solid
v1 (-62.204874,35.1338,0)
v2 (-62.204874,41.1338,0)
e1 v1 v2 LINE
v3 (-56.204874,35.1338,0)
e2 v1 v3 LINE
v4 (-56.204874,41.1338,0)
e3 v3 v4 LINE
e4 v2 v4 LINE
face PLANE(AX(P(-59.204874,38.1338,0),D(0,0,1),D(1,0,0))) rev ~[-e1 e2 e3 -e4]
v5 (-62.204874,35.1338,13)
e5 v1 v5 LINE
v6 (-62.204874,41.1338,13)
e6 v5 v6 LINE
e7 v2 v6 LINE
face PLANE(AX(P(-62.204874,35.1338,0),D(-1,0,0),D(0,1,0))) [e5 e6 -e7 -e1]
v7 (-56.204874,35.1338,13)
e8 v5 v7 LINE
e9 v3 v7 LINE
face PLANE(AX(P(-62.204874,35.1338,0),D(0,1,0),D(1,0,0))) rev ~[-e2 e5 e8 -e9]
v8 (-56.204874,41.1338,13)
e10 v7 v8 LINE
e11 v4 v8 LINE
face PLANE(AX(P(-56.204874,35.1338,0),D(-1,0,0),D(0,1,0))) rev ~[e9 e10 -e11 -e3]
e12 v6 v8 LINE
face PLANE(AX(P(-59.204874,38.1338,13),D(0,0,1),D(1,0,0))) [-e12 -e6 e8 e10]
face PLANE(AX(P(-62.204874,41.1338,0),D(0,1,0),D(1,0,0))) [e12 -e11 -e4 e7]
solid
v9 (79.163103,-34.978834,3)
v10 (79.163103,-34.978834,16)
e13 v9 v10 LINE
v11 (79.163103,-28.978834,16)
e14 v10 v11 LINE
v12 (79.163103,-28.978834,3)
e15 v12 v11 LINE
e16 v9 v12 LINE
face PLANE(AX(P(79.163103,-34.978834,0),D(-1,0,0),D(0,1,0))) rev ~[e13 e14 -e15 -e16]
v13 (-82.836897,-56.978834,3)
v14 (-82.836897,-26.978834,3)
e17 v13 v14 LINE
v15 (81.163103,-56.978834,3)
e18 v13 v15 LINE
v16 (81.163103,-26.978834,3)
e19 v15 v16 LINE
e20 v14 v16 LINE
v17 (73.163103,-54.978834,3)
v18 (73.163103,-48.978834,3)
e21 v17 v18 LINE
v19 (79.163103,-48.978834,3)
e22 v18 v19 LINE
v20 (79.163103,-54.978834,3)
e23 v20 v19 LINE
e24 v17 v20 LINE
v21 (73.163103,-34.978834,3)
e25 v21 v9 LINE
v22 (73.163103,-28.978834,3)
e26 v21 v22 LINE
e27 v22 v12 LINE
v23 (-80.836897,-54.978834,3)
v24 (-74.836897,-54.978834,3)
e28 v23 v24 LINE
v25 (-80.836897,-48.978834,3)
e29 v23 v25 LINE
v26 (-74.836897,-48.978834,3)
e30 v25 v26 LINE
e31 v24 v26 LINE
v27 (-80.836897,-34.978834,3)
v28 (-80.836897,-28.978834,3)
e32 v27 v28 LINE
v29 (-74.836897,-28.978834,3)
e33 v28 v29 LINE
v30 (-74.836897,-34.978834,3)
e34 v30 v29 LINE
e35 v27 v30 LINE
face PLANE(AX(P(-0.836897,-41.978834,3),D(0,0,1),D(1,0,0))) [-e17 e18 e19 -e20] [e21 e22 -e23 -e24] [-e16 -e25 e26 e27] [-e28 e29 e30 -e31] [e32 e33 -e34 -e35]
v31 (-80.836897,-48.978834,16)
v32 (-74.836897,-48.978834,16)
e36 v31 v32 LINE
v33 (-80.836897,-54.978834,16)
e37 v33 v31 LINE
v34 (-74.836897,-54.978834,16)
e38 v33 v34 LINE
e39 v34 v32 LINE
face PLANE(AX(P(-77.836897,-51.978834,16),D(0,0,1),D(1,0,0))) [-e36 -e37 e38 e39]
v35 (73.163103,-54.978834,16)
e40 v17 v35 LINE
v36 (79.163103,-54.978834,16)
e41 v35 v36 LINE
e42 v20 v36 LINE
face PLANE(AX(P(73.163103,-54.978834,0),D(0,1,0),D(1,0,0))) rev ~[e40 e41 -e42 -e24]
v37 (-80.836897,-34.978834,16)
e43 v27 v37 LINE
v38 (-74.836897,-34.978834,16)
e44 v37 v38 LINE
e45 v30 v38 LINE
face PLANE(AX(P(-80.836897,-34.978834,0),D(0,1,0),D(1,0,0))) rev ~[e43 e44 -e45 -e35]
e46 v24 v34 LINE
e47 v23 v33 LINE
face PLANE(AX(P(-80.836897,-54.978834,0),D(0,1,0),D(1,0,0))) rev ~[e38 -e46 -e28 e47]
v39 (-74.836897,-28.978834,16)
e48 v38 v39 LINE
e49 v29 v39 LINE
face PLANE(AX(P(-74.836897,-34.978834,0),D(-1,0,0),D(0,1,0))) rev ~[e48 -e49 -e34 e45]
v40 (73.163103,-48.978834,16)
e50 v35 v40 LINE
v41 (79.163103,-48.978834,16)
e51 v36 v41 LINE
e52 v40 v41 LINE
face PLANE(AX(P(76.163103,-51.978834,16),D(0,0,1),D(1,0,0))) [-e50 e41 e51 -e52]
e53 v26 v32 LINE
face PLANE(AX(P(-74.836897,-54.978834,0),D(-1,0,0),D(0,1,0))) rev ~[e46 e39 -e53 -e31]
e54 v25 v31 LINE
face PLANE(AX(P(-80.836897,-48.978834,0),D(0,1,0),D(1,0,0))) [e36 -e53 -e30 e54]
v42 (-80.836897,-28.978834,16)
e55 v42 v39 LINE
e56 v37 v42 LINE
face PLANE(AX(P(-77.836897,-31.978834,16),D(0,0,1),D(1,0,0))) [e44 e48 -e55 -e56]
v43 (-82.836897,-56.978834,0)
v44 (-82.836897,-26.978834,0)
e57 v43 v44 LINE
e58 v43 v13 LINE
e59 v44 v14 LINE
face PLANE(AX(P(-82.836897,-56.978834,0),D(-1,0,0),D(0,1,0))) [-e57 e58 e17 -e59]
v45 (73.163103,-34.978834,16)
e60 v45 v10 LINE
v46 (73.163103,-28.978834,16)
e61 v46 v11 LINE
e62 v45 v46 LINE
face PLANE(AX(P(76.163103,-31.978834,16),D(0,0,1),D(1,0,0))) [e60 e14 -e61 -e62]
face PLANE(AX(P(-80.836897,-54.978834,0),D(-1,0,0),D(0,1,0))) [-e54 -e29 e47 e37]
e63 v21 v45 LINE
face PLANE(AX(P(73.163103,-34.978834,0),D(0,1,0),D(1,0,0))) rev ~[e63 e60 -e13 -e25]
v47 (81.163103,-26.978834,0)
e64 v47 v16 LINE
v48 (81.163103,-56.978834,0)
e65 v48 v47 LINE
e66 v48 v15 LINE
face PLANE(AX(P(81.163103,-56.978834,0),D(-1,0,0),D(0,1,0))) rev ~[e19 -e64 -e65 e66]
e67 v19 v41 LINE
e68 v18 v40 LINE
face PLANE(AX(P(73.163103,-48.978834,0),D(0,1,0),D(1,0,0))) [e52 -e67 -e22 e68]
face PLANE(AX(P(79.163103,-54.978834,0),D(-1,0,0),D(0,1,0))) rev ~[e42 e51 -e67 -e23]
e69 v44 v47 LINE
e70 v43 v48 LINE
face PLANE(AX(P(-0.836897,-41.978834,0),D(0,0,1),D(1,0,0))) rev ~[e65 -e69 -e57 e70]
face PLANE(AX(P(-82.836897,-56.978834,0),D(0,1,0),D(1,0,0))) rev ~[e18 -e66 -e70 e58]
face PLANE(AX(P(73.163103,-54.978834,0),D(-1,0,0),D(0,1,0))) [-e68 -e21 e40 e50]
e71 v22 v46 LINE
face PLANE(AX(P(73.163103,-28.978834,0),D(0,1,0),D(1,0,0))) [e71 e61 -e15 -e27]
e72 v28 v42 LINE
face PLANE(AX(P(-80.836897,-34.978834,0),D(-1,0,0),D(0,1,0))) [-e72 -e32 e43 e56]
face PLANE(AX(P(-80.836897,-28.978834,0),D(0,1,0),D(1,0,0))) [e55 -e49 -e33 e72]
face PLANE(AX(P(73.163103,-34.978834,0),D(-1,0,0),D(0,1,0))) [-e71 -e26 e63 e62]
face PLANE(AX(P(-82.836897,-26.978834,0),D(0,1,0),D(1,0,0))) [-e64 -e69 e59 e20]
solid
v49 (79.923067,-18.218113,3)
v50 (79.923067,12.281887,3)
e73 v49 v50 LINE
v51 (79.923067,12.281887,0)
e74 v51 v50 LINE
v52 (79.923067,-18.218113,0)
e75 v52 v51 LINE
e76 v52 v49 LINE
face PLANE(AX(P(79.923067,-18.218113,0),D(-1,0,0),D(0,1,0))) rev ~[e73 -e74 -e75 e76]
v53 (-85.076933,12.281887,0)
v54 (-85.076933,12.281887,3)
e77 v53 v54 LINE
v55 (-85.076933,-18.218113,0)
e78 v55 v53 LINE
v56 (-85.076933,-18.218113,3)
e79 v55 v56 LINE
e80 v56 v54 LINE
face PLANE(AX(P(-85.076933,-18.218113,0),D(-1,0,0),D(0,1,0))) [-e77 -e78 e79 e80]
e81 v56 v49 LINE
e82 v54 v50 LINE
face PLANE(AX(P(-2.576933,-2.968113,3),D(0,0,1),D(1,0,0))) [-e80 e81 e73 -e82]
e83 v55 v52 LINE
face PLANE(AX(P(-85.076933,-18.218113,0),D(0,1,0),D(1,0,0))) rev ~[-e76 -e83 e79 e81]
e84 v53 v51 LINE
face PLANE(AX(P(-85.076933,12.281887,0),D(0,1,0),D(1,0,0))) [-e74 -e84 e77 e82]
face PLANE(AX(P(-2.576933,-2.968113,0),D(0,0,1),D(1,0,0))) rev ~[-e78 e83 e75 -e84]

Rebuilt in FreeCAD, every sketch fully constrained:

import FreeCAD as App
import Part
import Sketcher

V = App.Vector
Q = App.Units.Quantity

doc = App.newDocument("Part")
body = doc.addObject("PartDesign::Body", "Body")

sketch1 = body.newObject("Sketcher::SketchObject", "Sketch")
sketch1.AttachmentSupport = (doc.getObject("XY_Plane"), [""])
sketch1.MapMode = "FlatFace"
sketch1.addGeometry([
    Part.LineSegment(V(-85, 12, 0), V(-85, -18, 0)),
    Part.LineSegment(V(-85, -18, 0), V(80, -18, 0)),
    Part.LineSegment(V(80, -18, 0), V(80, 12, 0)),
    Part.LineSegment(V(80, 12, 0), V(-85, 12, 0)),
], False)
sketch1.addConstraint([
    Sketcher.Constraint("Coincident", 0, 2, 1, 1),
    Sketcher.Constraint("Coincident", 1, 2, 2, 1),
    Sketcher.Constraint("Coincident", 2, 2, 3, 1),
    Sketcher.Constraint("Coincident", 3, 2, 0, 1),
    Sketcher.Constraint("Vertical", 0),
    Sketcher.Constraint("Horizontal", 1),
    Sketcher.Constraint("Vertical", 2),
    Sketcher.Constraint("Horizontal", 3),
    Sketcher.Constraint("DistanceX", 1, 1, 1, 2, Q("165 mm")),
    Sketcher.Constraint("DistanceY", 0, 2, 0, 1, Q("30.5 mm")),
    Sketcher.Constraint("DistanceX", 0, 2, -1, 1, Q("85.076933 mm")),
    Sketcher.Constraint("DistanceY", 0, 2, -1, 1, Q("18.218113 mm")),
])
pad1 = body.newObject("PartDesign::Pad", "Pad")
pad1.Profile = sketch1
pad1.Length = 3
body2 = doc.addObject("PartDesign::Body", "Body001")

sketch2 = body2.newObject("Sketcher::SketchObject", "Sketch001")
sketch2.AttachmentSupport = (doc.getObject("XY_Plane001"), [""])
sketch2.MapMode = "FlatFace"
sketch2.addGeometry([
    Part.LineSegment(V(-62, 41, 0), V(-62, 35, 0)),
    Part.LineSegment(V(-62, 35, 0), V(-56, 35, 0)),
    Part.LineSegment(V(-56, 35, 0), V(-56, 41, 0)),
    Part.LineSegment(V(-56, 41, 0), V(-62, 41, 0)),
], False)
sketch2.addConstraint([
    Sketcher.Constraint("Coincident", 0, 2, 1, 1),
    Sketcher.Constraint("Coincident", 1, 2, 2, 1),
    Sketcher.Constraint("Coincident", 2, 2, 3, 1),
    Sketcher.Constraint("Coincident", 3, 2, 0, 1),
    Sketcher.Constraint("Vertical", 0),
    Sketcher.Constraint("Horizontal", 1),
    Sketcher.Constraint("Vertical", 2),
    Sketcher.Constraint("Horizontal", 3),
    Sketcher.Constraint("Equal", 3, 0),
    Sketcher.Constraint("DistanceX", 1, 1, 1, 2, Q("6 mm")),
    Sketcher.Constraint("DistanceY", -1, 1, 0, 2, Q("35.1338 mm")),
    Sketcher.Constraint("DistanceX", 0, 2, -1, 1, Q("62.204874 mm")),
])
pad2 = body2.newObject("PartDesign::Pad", "Pad001")
pad2.Profile = sketch2
pad2.Length = 13
body3 = doc.addObject("PartDesign::Body", "Body002")

sketch3 = body3.newObject("Sketcher::SketchObject", "Sketch002")
sketch3.AttachmentSupport = (doc.getObject("XY_Plane002"), [""])
sketch3.MapMode = "FlatFace"
sketch3.addGeometry([
    Part.LineSegment(V(-83, -27, 0), V(-83, -57, 0)),
    Part.LineSegment(V(-83, -57, 0), V(81, -57, 0)),
    Part.LineSegment(V(81, -57, 0), V(81, -27, 0)),
    Part.LineSegment(V(81, -27, 0), V(-83, -27, 0)),
    Part.LineSegment(V(-75, -55, 0), V(-81, -55, 0)),
    Part.LineSegment(V(-81, -55, 0), V(-81, -49, 0)),
    Part.LineSegment(V(-81, -49, 0), V(-75, -49, 0)),
    Part.LineSegment(V(-75, -49, 0), V(-75, -55, 0)),
    Part.LineSegment(V(79, -55, 0), V(73, -55, 0)),
    Part.LineSegment(V(73, -55, 0), V(73, -49, 0)),
    Part.LineSegment(V(73, -49, 0), V(79, -49, 0)),
    Part.LineSegment(V(79, -49, 0), V(79, -55, 0)),
    Part.LineSegment(V(-75, -35, 0), V(-81, -35, 0)),
    Part.LineSegment(V(-81, -35, 0), V(-81, -29, 0)),
    Part.LineSegment(V(-81, -29, 0), V(-75, -29, 0)),
    Part.LineSegment(V(-75, -29, 0), V(-75, -35, 0)),
    Part.LineSegment(V(79, -35, 0), V(73, -35, 0)),
    Part.LineSegment(V(73, -35, 0), V(73, -29, 0)),
    Part.LineSegment(V(73, -29, 0), V(79, -29, 0)),
    Part.LineSegment(V(79, -29, 0), V(79, -35, 0)),
], False)
sketch3.addConstraint([
    Sketcher.Constraint("Coincident", 0, 2, 1, 1),
    Sketcher.Constraint("Coincident", 1, 2, 2, 1),
    Sketcher.Constraint("Coincident", 2, 2, 3, 1),
    Sketcher.Constraint("Coincident", 3, 2, 0, 1),
    Sketcher.Constraint("Coincident", 4, 2, 5, 1),
    Sketcher.Constraint("Coincident", 5, 2, 6, 1),
    Sketcher.Constraint("Coincident", 6, 2, 7, 1),
    Sketcher.Constraint("Coincident", 7, 2, 4, 1),
    Sketcher.Constraint("Coincident", 8, 2, 9, 1),
    Sketcher.Constraint("Coincident", 9, 2, 10, 1),
    Sketcher.Constraint("Coincident", 10, 2, 11, 1),
    Sketcher.Constraint("Coincident", 11, 2, 8, 1),
    Sketcher.Constraint("Coincident", 12, 2, 13, 1),
    Sketcher.Constraint("Coincident", 13, 2, 14, 1),
    Sketcher.Constraint("Coincident", 14, 2, 15, 1),
    Sketcher.Constraint("Coincident", 15, 2, 12, 1),
    Sketcher.Constraint("Coincident", 16, 2, 17, 1),
    Sketcher.Constraint("Coincident", 17, 2, 18, 1),
    Sketcher.Constraint("Coincident", 18, 2, 19, 1),
    Sketcher.Constraint("Coincident", 19, 2, 16, 1),
    Sketcher.Constraint("Vertical", 0),
    Sketcher.Constraint("Horizontal", 1),
    Sketcher.Constraint("Vertical", 2),
    Sketcher.Constraint("Horizontal", 3),
    Sketcher.Constraint("Horizontal", 4),
    Sketcher.Constraint("Vertical", 5),
    Sketcher.Constraint("Horizontal", 6),
    Sketcher.Constraint("Vertical", 7),
    Sketcher.Constraint("Horizontal", 8),
    Sketcher.Constraint("Vertical", 9),
    Sketcher.Constraint("Horizontal", 10),
    Sketcher.Constraint("Vertical", 11),
    Sketcher.Constraint("Horizontal", 12),
    Sketcher.Constraint("Vertical", 13),
    Sketcher.Constraint("Horizontal", 14),
    Sketcher.Constraint("Vertical", 15),
    Sketcher.Constraint("Horizontal", 16),
    Sketcher.Constraint("Vertical", 17),
    Sketcher.Constraint("Horizontal", 18),
    Sketcher.Constraint("Vertical", 19),
    Sketcher.Constraint("Horizontal", 7, 2, 8, 2),
    Sketcher.Constraint("Horizontal", 6, 2, 9, 2),
    Sketcher.Constraint("Horizontal", 15, 2, 16, 2),
    Sketcher.Constraint("Horizontal", 14, 2, 17, 2),
    Sketcher.Constraint("Vertical", 5, 2, 12, 2),
    Sketcher.Constraint("Vertical", 7, 2, 14, 2),
    Sketcher.Constraint("Vertical", 9, 2, 16, 2),
    Sketcher.Constraint("Vertical", 11, 2, 18, 2),
    Sketcher.Constraint("Equal", 6, 8),
    Sketcher.Constraint("Equal", 18, 5),
    Sketcher.Constraint("Equal", 11, 13),
    Sketcher.Constraint("DistanceX", 1, 1, 1, 2, Q("164 mm")),
    Sketcher.Constraint("DistanceX", 4, 2, 4, 1, Q("6 mm")),
    Sketcher.Constraint("DistanceY", 0, 2, 0, 1, Q("30 mm")),
    Sketcher.Constraint("DistanceX", 0, 2, 4, 2, Q("2 mm")),
    Sketcher.Constraint("DistanceY", 0, 2, 4, 2, Q("2 mm")),
    Sketcher.Constraint("DistanceX", 8, 2, 1, 2, Q("8 mm")),
    Sketcher.Constraint("DistanceY", 12, 2, 3, 2, Q("8 mm")),
    Sketcher.Constraint("DistanceX", 0, 2, -1, 1, Q("82.836897 mm")),
    Sketcher.Constraint("DistanceY", 0, 2, -1, 1, Q("56.978834 mm")),
])
pad3 = body3.newObject("PartDesign::Pad", "Pad002")
pad3.Profile = sketch3
pad3.Length = 3

sketch4 = body3.newObject("Sketcher::SketchObject", "Sketch003")
sketch4.AttachmentSupport = (doc.getObject("XY_Plane002"), [""])
sketch4.MapMode = "FlatFace"
sketch4.addGeometry([
    Part.LineSegment(V(-81, -29, 0), V(-81, -35, 0)),
    Part.LineSegment(V(-81, -35, 0), V(-75, -35, 0)),
    Part.LineSegment(V(-75, -35, 0), V(-75, -29, 0)),
    Part.LineSegment(V(-75, -29, 0), V(-81, -29, 0)),
    Part.LineSegment(V(-81, -49, 0), V(-81, -55, 0)),
    Part.LineSegment(V(-81, -55, 0), V(-75, -55, 0)),
    Part.LineSegment(V(-75, -55, 0), V(-75, -49, 0)),
    Part.LineSegment(V(-75, -49, 0), V(-81, -49, 0)),
    Part.LineSegment(V(73, -29, 0), V(73, -35, 0)),
    Part.LineSegment(V(73, -35, 0), V(79, -35, 0)),
    Part.LineSegment(V(79, -35, 0), V(79, -29, 0)),
    Part.LineSegment(V(79, -29, 0), V(73, -29, 0)),
    Part.LineSegment(V(73, -49, 0), V(73, -55, 0)),
    Part.LineSegment(V(73, -55, 0), V(79, -55, 0)),
    Part.LineSegment(V(79, -55, 0), V(79, -49, 0)),
    Part.LineSegment(V(79, -49, 0), V(73, -49, 0)),
], False)
sketch4.addConstraint([
    Sketcher.Constraint("Coincident", 0, 2, 1, 1),
    Sketcher.Constraint("Coincident", 1, 2, 2, 1),
    Sketcher.Constraint("Coincident", 2, 2, 3, 1),
    Sketcher.Constraint("Coincident", 3, 2, 0, 1),
    Sketcher.Constraint("Coincident", 4, 2, 5, 1),
    Sketcher.Constraint("Coincident", 5, 2, 6, 1),
    Sketcher.Constraint("Coincident", 6, 2, 7, 1),
    Sketcher.Constraint("Coincident", 7, 2, 4, 1),
    Sketcher.Constraint("Coincident", 8, 2, 9, 1),
    Sketcher.Constraint("Coincident", 9, 2, 10, 1),
    Sketcher.Constraint("Coincident", 10, 2, 11, 1),
    Sketcher.Constraint("Coincident", 11, 2, 8, 1),
    Sketcher.Constraint("Coincident", 12, 2, 13, 1),
    Sketcher.Constraint("Coincident", 13, 2, 14, 1),
    Sketcher.Constraint("Coincident", 14, 2, 15, 1),
    Sketcher.Constraint("Coincident", 15, 2, 12, 1),
    Sketcher.Constraint("Vertical", 0),
    Sketcher.Constraint("Horizontal", 1),
    Sketcher.Constraint("Vertical", 2),
    Sketcher.Constraint("Horizontal", 3),
    Sketcher.Constraint("Vertical", 4),
    Sketcher.Constraint("Horizontal", 5),
    Sketcher.Constraint("Vertical", 6),
    Sketcher.Constraint("Horizontal", 7),
    Sketcher.Constraint("Vertical", 8),
    Sketcher.Constraint("Horizontal", 9),
    Sketcher.Constraint("Vertical", 10),
    Sketcher.Constraint("Horizontal", 11),
    Sketcher.Constraint("Vertical", 12),
    Sketcher.Constraint("Horizontal", 13),
    Sketcher.Constraint("Vertical", 14),
    Sketcher.Constraint("Horizontal", 15),
    Sketcher.Constraint("Horizontal", 1, 2, 8, 2),
    Sketcher.Constraint("Horizontal", 3, 2, 10, 2),
    Sketcher.Constraint("Horizontal", 5, 2, 12, 2),
    Sketcher.Constraint("Horizontal", 7, 2, 14, 2),
    Sketcher.Constraint("Vertical", 3, 2, 4, 2),
    Sketcher.Constraint("Vertical", 2, 2, 5, 2),
    Sketcher.Constraint("Vertical", 11, 2, 12, 2),
    Sketcher.Constraint("Vertical", 10, 2, 13, 2),
    Sketcher.Constraint("Equal", 7, 9),
    Sketcher.Constraint("Equal", 15, 0),
    Sketcher.Constraint("Equal", 2, 4),
    Sketcher.Constraint("DistanceX", 1, 1, 1, 2, Q("6 mm")),
    Sketcher.Constraint("DistanceY", 4, 2, 0, 2, Q("20 mm")),
    Sketcher.Constraint("DistanceX", 1, 2, 8, 2, Q("148 mm")),
    Sketcher.Constraint("DistanceX", 0, 2, -1, 1, Q("80.836897 mm")),
    Sketcher.Constraint("DistanceY", 0, 2, -1, 1, Q("34.978834 mm")),
])
pad4 = body3.newObject("PartDesign::Pad", "Pad003")
pad4.Profile = sketch4
pad4.Length = 16

doc.recompute()
